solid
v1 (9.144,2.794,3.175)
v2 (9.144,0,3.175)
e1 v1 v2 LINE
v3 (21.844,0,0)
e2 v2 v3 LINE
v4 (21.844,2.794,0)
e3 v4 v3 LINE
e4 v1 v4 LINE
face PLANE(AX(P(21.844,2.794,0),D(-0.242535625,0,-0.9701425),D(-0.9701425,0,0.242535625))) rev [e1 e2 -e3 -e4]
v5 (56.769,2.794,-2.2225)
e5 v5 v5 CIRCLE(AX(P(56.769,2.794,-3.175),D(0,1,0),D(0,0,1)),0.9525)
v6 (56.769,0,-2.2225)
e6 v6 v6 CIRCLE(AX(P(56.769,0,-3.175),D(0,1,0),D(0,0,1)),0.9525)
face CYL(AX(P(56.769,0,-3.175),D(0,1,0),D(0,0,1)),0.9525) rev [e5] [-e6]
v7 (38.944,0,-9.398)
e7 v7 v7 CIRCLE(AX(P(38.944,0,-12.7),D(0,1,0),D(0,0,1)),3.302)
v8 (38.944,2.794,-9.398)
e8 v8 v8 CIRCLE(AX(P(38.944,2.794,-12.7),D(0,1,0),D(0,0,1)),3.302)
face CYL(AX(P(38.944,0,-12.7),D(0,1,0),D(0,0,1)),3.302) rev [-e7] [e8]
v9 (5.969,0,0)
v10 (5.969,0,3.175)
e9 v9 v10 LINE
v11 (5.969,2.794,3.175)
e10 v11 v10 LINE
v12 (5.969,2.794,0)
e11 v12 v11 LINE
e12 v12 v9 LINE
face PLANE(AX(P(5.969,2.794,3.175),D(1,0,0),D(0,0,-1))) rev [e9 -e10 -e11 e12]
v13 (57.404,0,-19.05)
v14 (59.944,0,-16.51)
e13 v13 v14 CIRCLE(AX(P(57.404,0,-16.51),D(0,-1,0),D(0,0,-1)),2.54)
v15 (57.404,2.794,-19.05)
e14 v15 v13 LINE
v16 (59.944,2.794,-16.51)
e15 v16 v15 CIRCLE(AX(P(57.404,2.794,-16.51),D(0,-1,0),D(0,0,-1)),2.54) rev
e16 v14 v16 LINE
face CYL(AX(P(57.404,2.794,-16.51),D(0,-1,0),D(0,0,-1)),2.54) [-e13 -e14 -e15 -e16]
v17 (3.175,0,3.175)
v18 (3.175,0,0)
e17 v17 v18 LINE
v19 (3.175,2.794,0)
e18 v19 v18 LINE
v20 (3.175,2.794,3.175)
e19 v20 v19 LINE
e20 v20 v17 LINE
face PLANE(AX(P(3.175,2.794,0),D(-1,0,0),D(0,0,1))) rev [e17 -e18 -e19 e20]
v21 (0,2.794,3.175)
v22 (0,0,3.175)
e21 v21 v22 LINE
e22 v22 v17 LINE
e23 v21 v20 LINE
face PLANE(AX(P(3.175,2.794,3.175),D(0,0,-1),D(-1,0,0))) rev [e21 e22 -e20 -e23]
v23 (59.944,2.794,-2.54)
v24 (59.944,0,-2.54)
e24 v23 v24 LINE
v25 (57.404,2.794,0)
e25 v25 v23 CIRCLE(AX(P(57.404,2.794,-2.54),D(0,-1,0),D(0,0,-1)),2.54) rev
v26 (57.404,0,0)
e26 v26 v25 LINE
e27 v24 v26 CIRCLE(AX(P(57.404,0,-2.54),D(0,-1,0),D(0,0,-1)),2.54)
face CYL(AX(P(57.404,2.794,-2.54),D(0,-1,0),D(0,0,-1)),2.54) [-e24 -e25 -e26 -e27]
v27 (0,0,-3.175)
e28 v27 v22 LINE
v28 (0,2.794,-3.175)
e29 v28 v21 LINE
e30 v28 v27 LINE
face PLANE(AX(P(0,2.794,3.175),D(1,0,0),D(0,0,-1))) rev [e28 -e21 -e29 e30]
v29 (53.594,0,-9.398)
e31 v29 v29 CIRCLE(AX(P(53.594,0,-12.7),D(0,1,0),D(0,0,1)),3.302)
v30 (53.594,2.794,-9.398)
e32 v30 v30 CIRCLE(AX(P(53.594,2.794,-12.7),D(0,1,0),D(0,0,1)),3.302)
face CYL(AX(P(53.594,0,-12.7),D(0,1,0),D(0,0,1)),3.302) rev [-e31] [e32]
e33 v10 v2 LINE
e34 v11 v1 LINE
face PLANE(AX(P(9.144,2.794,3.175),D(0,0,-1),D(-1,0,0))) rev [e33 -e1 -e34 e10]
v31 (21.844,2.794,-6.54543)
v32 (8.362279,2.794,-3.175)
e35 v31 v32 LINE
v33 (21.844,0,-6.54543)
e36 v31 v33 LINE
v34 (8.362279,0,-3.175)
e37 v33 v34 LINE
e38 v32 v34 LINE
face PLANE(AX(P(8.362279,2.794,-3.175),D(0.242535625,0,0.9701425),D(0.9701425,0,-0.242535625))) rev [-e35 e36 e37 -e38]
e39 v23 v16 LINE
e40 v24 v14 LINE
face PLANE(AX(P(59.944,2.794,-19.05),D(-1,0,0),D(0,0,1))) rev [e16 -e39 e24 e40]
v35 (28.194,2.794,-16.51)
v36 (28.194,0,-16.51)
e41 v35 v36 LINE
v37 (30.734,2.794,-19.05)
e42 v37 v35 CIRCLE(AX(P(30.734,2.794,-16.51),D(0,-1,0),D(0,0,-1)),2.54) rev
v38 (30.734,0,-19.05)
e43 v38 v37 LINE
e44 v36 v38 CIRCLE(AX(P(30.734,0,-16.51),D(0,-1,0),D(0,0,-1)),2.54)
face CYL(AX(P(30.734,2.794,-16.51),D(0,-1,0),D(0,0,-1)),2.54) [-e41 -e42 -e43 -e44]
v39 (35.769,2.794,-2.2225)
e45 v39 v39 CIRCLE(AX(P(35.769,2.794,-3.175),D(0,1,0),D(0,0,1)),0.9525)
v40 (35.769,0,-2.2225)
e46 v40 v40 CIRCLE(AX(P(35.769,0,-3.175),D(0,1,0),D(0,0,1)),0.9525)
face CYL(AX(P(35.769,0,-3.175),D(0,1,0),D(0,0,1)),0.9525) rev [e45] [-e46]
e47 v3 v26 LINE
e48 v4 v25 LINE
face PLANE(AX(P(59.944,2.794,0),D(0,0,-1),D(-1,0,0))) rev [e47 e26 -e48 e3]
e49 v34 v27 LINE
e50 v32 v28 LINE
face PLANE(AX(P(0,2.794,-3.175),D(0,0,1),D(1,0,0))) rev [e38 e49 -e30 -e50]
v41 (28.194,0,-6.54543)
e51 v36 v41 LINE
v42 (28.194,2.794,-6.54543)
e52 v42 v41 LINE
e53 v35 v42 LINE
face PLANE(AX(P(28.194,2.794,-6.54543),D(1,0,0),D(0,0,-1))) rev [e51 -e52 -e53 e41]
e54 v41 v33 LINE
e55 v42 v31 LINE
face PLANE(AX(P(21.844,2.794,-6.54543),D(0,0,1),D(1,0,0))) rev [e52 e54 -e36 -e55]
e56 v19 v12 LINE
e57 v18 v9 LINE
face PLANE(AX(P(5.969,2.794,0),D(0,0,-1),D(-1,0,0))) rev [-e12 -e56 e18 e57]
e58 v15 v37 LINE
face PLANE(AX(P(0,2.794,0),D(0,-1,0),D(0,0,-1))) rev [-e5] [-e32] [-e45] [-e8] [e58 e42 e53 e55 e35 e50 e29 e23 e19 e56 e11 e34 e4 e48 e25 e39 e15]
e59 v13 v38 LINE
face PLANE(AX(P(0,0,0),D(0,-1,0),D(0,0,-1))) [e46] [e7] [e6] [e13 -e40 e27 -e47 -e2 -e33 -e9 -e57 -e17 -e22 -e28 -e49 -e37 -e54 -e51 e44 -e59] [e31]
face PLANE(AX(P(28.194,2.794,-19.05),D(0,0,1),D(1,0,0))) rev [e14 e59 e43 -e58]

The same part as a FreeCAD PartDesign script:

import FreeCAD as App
import Part
import Sketcher

V = App.Vector
Q = App.Units.Quantity


def edges_at(feature, points):
    """Names of the edges that pass closest to the given points."""
    edges = feature.Shape.Edges
    near = lambda p: min(range(len(edges)), key=lambda i: edges[i].distToShape(Part.Vertex(*p))[0])
    return sorted({f"Edge{near(p) + 1}" for p in points})

doc = App.newDocument("Part")
body = doc.addObject("PartDesign::Body", "Body")

# Sketch on XZ plane
sketch1 = body.newObject("Sketcher::SketchObject", "Sketch")
sketch1.AttachmentSupport = (doc.getObject("XZ_Plane"), [""])
sketch1.MapMode = "FlatFace"
sketch1.addGeometry([
    Part.LineSegment(V(21.844, 0, 0), V(59.944, 0, 0)),  # 0
    Part.LineSegment(V(59.944, 0, 0), V(59.944, -19.05, 0)),  # 1
    Part.LineSegment(V(59.944, -19.05, 0), V(28.194, -19.05, 0)),  # 2
    Part.LineSegment(V(28.194, -19.05, 0), V(28.194, -6.54543, 0)),  # 3
    Part.LineSegment(V(28.194, -6.54543, 0), V(21.844, -6.54543, 0)),  # 4
    Part.LineSegment(V(21.844, -6.54543, 0), V(8.362279, -3.175, 0)),  # 5
    Part.LineSegment(V(8.362279, -3.175, 0), V(0, -3.175, 0)),  # 6
    Part.LineSegment(V(0, -3.175, 0), V(0, 3.175, 0)),  # 7
    Part.LineSegment(V(0, 3.175, 0), V(3.175, 3.175, 0)),  # 8
    Part.LineSegment(V(3.175, 3.175, 0), V(3.175, 0, 0)),  # 9
    Part.LineSegment(V(3.175, 0, 0), V(5.969, 0, 0)),  # 10
    Part.LineSegment(V(5.969, 0, 0), V(5.969, 3.175, 0)),  # 11
    Part.LineSegment(V(5.969, 3.175, 0), V(9.144, 3.175, 0)),  # 12
    Part.LineSegment(V(9.144, 3.175, 0), V(21.844, 0, 0)),  # 13
], False)
sketch1.addConstraint([
    Sketcher.Constraint("Coincident", 0, 2, 1, 1),
    Sketcher.Constraint("Coincident", 1, 2, 2, 1),
    Sketcher.Constraint("Coincident", 2, 2, 3, 1),
    Sketcher.Constraint("Coincident", 3, 2, 4, 1),
    Sketcher.Constraint("Coincident", 4, 2, 5, 1),
    Sketcher.Constraint("Coincident", 5, 2, 6, 1),
    Sketcher.Constraint("Coincident", 6, 2, 7, 1),
    Sketcher.Constraint("Coincident", 7, 2, 8, 1),
    Sketcher.Constraint("Coincident", 8, 2, 9, 1),
    Sketcher.Constraint("Coincident", 9, 2, 10, 1),
    Sketcher.Constraint("Coincident", 10, 2, 11, 1),
    Sketcher.Constraint("Coincident", 11, 2, 12, 1),
    Sketcher.Constraint("Coincident", 12, 2, 13, 1),
    Sketcher.Constraint("Coincident", 13, 2, 0, 1),
    Sketcher.Constraint("Horizontal", 0),
    Sketcher.Constraint("Vertical", 1),
    Sketcher.Constraint("Horizontal", 2),
    Sketcher.Constraint("Vertical", 3),
    Sketcher.Constraint("Horizontal", 4),
    Sketcher.Constraint("Horizontal", 6),
    Sketcher.Constraint("Vertical", 7),
    Sketcher.Constraint("Horizontal", 8),
    Sketcher.Constraint("Vertical", 9),
    Sketcher.Constraint("Horizontal", 10),
    Sketcher.Constraint("Vertical", 11),
    Sketcher.Constraint("Horizontal", 12),
    Sketcher.Constraint("Symmetric", 6, 2, 7, 2, -1, 1),
    Sketcher.Constraint("PointOnObject", 0, 2, -1),
    Sketcher.Constraint("PointOnObject", 9, 2, -1),
    Sketcher.Constraint("Parallel", 5, 13),
    Sketcher.Constraint("Horizontal", 8, 2, 11, 2),
    Sketcher.Constraint("Vertical", 4, 2, 13, 2),
    Sketcher.Constraint("Equal", 8, 12),
    Sketcher.Constraint("Equal", 4, 7),
    Sketcher.Constraint("Equal", 12, 9),
    Sketcher.Constraint("DistanceX", 0, 1, 0, 2, Q("1.5 in")),
    Sketcher.Constraint("DistanceX", 2, 2, 2, 1, Q("1.25 in")),
    Sketcher.Constraint("DistanceX", 10, 1, 10, 2, Q("0.11 in")),
    Sketcher.Constraint("DistanceY", 1, 2, 1, 1, Q("0.75 in")),
    Sketcher.Constraint("DistanceX", 12, 2, 13, 2, Q("0.5 in")),
    Sketcher.Constraint("DistanceX", 6, 2, 6, 1, 8.362279),
])
pad1 = body.newObject("PartDesign::Pad", "Pad")
pad1.Profile = sketch1
pad1.Length = Q("0.11 in")
pad1.Reversed = True

# Sketch on XZ plane
sketch2 = body.newObject("Sketcher::SketchObject", "Sketch001")
sketch2.AttachmentSupport = (doc.getObject("XZ_Plane"), [""])
sketch2.MapMode = "FlatFace"
sketch2.AttachmentOffset = App.Placement(V(0, 0, -0.11 * 25.4), App.Rotation())
sketch2.addGeometry([
    Part.Circle(V(56.769, -3.175, 0), V(0, 0, 1), 0.9525),
    Part.Circle(V(35.769, -3.175, 0), V(0, 0, 1), 0.9525),
    Part.Circle(V(53.594, -12.7, 0), V(0, 0, 1), 3.302),
    Part.Circle(V(38.944, -12.7, 0), V(0, 0, 1), 3.302),
], False)
sketch2.addConstraint([
    Sketcher.Constraint("Equal", 0, 1),
    Sketcher.Constraint("Equal", 2, 3),
    Sketcher.Constraint("Horizontal", 0, 3, 1, 3),
    Sketcher.Constraint("Horizontal", 2, 3, 3, 3),
    Sketcher.Constraint("Diameter", 2, Q("0.26 in")),
    Sketcher.Constraint("Diameter", 0, Q("0.075 in")),
    Sketcher.Constraint("DistanceY", 2, 3, -1, 1, Q("0.5 in")),
    Sketcher.Constraint("DistanceX", -1, 1, 2, 3, Q("2.11 in")),
    Sketcher.Constraint("DistanceX", -1, 1, 0, 3, Q("2.235 in")),
    Sketcher.Constraint("DistanceY", 0, 3, -1, 1, Q("0.125 in")),
    Sketcher.Constraint("DistanceX", 1, 3, 3, 3, Q("0.125 in")),
    Sketcher.Constraint("DistanceX", -1, 1, 1, 3, 35.769),
])
pocket1 = body.newObject("PartDesign::Pocket", "Pocket")
pocket1.Profile = sketch2
pocket1.Type = "ThroughAll"
pocket1.Reversed = True
doc.recompute()

fillet = body.newObject("PartDesign::Fillet", "Fillet")
fillet.Base = (pocket1, edges_at(pocket1, [(59.944, 1.397, 0), (28.194, 1.397, -19.05), (59.944, 1.397, -19.05)]))
fillet.Radius = Q("0.1 in")

doc.recompute()
